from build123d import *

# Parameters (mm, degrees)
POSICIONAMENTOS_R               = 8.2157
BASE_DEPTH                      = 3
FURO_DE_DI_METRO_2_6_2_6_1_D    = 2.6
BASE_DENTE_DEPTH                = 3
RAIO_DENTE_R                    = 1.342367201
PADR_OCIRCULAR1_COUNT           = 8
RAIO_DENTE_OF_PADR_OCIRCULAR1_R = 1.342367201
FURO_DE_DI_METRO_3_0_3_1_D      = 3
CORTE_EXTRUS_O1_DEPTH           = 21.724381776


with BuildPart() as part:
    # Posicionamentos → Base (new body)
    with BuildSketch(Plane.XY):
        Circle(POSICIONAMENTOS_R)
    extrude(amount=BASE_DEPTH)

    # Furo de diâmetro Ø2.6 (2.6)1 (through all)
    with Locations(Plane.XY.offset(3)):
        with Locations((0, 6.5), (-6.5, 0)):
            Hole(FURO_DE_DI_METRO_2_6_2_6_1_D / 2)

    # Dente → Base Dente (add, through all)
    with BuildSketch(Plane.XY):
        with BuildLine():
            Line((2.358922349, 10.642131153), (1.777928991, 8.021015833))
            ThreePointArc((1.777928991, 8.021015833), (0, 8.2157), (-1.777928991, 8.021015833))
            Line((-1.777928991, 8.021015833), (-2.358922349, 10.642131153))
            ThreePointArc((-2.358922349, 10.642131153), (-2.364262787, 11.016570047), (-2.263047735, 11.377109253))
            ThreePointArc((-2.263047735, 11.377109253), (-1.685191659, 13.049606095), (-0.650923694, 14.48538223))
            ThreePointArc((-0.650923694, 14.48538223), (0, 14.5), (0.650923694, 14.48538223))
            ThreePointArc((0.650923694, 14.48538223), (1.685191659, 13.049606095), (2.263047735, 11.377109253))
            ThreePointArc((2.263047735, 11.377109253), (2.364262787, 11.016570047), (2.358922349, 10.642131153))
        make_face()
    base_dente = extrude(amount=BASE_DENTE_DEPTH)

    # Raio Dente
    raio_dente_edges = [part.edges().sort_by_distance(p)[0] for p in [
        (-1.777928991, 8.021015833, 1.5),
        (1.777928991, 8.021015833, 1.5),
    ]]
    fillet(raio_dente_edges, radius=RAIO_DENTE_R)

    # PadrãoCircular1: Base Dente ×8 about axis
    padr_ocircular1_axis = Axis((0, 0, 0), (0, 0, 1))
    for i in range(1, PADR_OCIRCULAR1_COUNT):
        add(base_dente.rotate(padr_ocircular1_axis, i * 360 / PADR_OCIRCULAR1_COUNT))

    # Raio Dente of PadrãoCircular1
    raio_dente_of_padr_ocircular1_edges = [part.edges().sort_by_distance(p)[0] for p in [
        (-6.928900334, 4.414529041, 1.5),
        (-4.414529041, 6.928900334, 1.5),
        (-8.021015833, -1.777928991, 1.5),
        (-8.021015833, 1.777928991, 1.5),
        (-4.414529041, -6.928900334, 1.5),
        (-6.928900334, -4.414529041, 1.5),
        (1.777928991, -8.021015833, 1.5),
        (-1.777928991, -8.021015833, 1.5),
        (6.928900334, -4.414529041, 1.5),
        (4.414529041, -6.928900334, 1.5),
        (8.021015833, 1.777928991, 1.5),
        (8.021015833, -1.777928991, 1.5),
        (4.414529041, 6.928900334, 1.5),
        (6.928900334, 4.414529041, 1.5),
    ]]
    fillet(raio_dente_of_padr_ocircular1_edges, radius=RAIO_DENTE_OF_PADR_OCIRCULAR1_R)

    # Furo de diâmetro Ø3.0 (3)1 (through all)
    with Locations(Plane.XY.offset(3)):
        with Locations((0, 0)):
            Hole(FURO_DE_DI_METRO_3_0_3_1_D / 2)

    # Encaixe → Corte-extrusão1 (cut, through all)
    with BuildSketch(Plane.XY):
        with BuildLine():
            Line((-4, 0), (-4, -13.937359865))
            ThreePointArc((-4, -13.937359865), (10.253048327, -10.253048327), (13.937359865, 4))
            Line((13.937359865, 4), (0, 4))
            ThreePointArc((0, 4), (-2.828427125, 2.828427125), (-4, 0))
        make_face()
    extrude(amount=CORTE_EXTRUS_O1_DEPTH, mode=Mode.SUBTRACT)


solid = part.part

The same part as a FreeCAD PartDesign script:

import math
import FreeCAD as App
import Part
import Sketcher
from FreeCAD import Vector
Q = App.Units.Quantity


def edges_at(feature, points):
    """Names of the edges that pass closest to the given points."""
    edges = feature.Shape.Edges
    near = lambda p: min(range(len(edges)), key=lambda i: edges[i].distToShape(Part.Vertex(*p))[0])
    return sorted({f"Edge{near(p) + 1}" for p in points})

doc = App.newDocument("Part")
params = doc.addObject("Spreadsheet::Sheet", "Params")
for row, (alias, value) in enumerate([
    ("pad1_length", "3 mm"),
    ("sketch2_diameter", "2.6 mm"),
    ("hole_diameter", "2.6 mm"),
    ("sketch3_radius", "14.5 mm"),
    ("sketch3_radius2", "6.09 mm"),
    ("pad2_length", "3 mm"),
    ("fillet_radius", "1.342367 mm"),
    ("fillet2_radius", "1.342367 mm"),
    ("sketch4_diameter", "3 mm"),
    ("hole2_diameter", "3 mm"),
    ("sketch5_radius", "4 mm"),
    ("sketch5_radius2", "14.5 mm"),
], start=1):
    params.set(f"A{row}", alias)
    params.set(f"B{row}", "=" + value)
    params.setAlias(f"B{row}", alias)

body = doc.addObject("PartDesign::Body", "Body")

# Sketch on XY plane
sketch1 = doc.addObject("Sketcher::SketchObject", "Sketch")
body.addObject(sketch1)
sketch1.AttachmentSupport = (doc.XY_Plane, [""])
sketch1.MapMode = "FlatFace"
sketch1.addGeometry(Part.Circle(Vector(0, 0, 0), Vector(0, 0, 1), 8.2157), False)
sketch1.addConstraint([
    Sketcher.Constraint("Coincident", 0, 3, -1, 1),
    Sketcher.Constraint("Diameter", 0, Q("16.4314 mm")),
])
pad1 = doc.addObject("PartDesign::Pad", "Pad")
body.addObject(pad1)
pad1.Profile = sketch1
pad1.setExpression("Length", "Params.pad1_length")

# Sketch on XY plane
sketch2 = doc.addObject("Sketcher::SketchObject", "Sketch001")
body.addObject(sketch2)
sketch2.AttachmentSupport = (doc.XY_Plane, [""])
sketch2.MapMode = "FlatFace"
sketch2.AttachmentOffset = App.Placement(Vector(0, 0, 3), App.Rotation())
sketch2.addGeometry([
    Part.Circle(Vector(0, 6.5, 0), Vector(0, 0, 1), 1.3),
    Part.Circle(Vector(-6.5, 0, 0), Vector(0, 0, 1), 1.3),
], False)
sketch2.addConstraint([
    Sketcher.Constraint("Equal", 0, 1),
    Sketcher.Constraint("PointOnObject", 0, 3, -2),
    Sketcher.Constraint("PointOnObject", 1, 3, -1),
    Sketcher.Constraint("Diameter", 0, Q("2.6 mm")),
    Sketcher.Constraint("DistanceY", -1, 1, 0, 3, Q("6.5 mm")),
    Sketcher.Constraint("DistanceX", 1, 3, -1, 1, Q("6.5 mm")),
])
sketch2.setExpression("Constraints[3]", "Params.sketch2_diameter")
doc.recompute()
hole = doc.addObject("PartDesign::Hole", "Hole")
body.addObject(hole)
hole.Profile = sketch2
hole.ThreadType = "None"
hole.setExpression("Diameter", "Params.hole_diameter")
hole.DepthType = "ThroughAll"

# Sketch on XY plane
sketch3 = doc.addObject("Sketcher::SketchObject", "Sketch002")
body.addObject(sketch3)
sketch3.AttachmentSupport = (doc.XY_Plane, [""])
sketch3.MapMode = "FlatFace"
sketch3.addGeometry([
    Part.LineSegment(Vector(1.777929, 8.021016, 0), Vector(2.358922, 10.642131, 0)),  # 0
    Part.ArcOfCircle(Part.Circle(Vector(1.070226, 10.847769, 0), Vector(0, 0, 1), 1.305), math.radians(-9.066266), math.radians(23.930294)),  # 1
    Part.ArcOfCircle(Part.Circle(Vector(-3.72093, 10.245689, 0), Vector(0, 0, 1), 6.09), math.radians(10.7068), math.radians(44.120755)),  # 2
    Part.ArcOfCircle(Part.Circle(Vector(0, 0, 0), Vector(0, 0, 1), 14.5), math.radians(87.427054), math.radians(92.572946)),  # 3
    Part.ArcOfCircle(Part.Circle(Vector(3.72093, 10.245689, 0), Vector(0, 0, 1), 6.09), math.radians(135.879245), math.radians(169.2932)),  # 4
    Part.ArcOfCircle(Part.Circle(Vector(-1.070226, 10.847769, 0), Vector(0, 0, 1), 1.305), math.radians(156.069706), math.radians(189.066266)),  # 5
    Part.LineSegment(Vector(-2.358922, 10.642131, 0), Vector(-1.777929, 8.021016, 0)),  # 6
    Part.ArcOfCircle(Part.Circle(Vector(0, 0, 0), Vector(0, 0, 1), 8.2157), math.radians(77.501957), math.radians(102.498043)),  # 7
], False)
sketch3.addConstraint([
    Sketcher.Constraint("Coincident", 0, 2, 1, 1),
    Sketcher.Constraint("Coincident", 1, 2, 2, 1),
    Sketcher.Constraint("Coincident", 2, 2, 3, 1),
    Sketcher.Constraint("Coincident", 3, 2, 4, 1),
    Sketcher.Constraint("Coincident", 4, 2, 5, 1),
    Sketcher.Constraint("Coincident", 5, 2, 6, 1),
    Sketcher.Constraint("Coincident", 6, 2, 7, 2),
    Sketcher.Constraint("Coincident", 7, 1, 0, 1),
    Sketcher.Constraint("Coincident", 3, 3, -1, 1),
    Sketcher.Constraint("Coincident", 7, 3, -1, 1),
    Sketcher.Constraint("Equal", 2, 4),
    Sketcher.Constraint("Equal", 1, 5),
    Sketcher.Constraint("Symmetric", 2, 3, 4, 3, -2),
    Sketcher.Constraint("Symmetric", 1, 3, 5, 3, -2),
    Sketcher.Constraint("Horizontal", 0, 2, 5, 2),
    Sketcher.Constraint("Horizontal", 6, 2, 7, 1),
    Sketcher.Constraint("Radius", 3, Q("14.5 mm")),
    Sketcher.Constraint("Radius", 2, Q("6.09 mm")),
    Sketcher.Constraint("Radius", 1, Q("1.305 mm")),
    Sketcher.Constraint("Radius", 7, Q("8.2157 mm")),
    Sketcher.Constraint("DistanceX", 2, 2, 0, 2, Q("1.707999 mm")),
    Sketcher.Constraint("DistanceX", 2, 3, 6, 2, Q("1.943001 mm")),
    Sketcher.Constraint("DistanceY", -1, 1, 1, 3, Q("10.847769 mm")),
    Sketcher.Constraint("DistanceX", 2, 3, -1, 1, Q("3.72093 mm")),
    Sketcher.Constraint("DistanceY", -1, 1, 2, 3, Q("10.245689 mm")),
    Sketcher.Constraint("DistanceY", -1, 1, 0, 2, Q("10.642131 mm")),
])
sketch3.setExpression("Constraints[16]", "Params.sketch3_radius")
sketch3.setExpression("Constraints[17]", "Params.sketch3_radius2")
pad2 = doc.addObject("PartDesign::Pad", "Pad001")
body.addObject(pad2)
pad2.Profile = sketch3
pad2.setExpression("Length", "Params.pad2_length")
doc.recompute()

fillet = doc.addObject("PartDesign::Fillet", "Fillet")
body.addObject(fillet)
fillet.Base = (pad2, edges_at(pad2, [(-1.778, 8.021, 1.5), (1.778, 8.021, 1.5)]))
fillet.setExpression("Radius", "Params.fillet_radius")
doc.recompute()

polarpattern = doc.addObject("PartDesign::PolarPattern", "PolarPattern")
body.addObject(polarpattern)
polarpattern.Originals = [pad2]
polarpattern.Axis = (doc.Z_Axis, [""])
polarpattern.Angle = 360
polarpattern.Occurrences = 8
body.Tip = polarpattern
doc.recompute()

fillet2 = doc.addObject("PartDesign::Fillet", "Fillet001")
body.addObject(fillet2)
fillet2.Base = (polarpattern, edges_at(polarpattern, [
    (-6.929, 4.415, 1.5),
    (-4.415, 6.929, 1.5),
    (-8.021, -1.778, 1.5),
    (-8.021, 1.778, 1.5),
    (-4.415, -6.929, 1.5),
    (-6.929, -4.415, 1.5),
    (1.778, -8.021, 1.5),
    (-1.778, -8.021, 1.5),
    (6.929, -4.415, 1.5),
    (4.415, -6.929, 1.5),
    (8.021, 1.778, 1.5),
    (8.021, -1.778, 1.5),
    (4.415, 6.929, 1.5),
    (6.929, 4.415, 1.5),
]))
fillet2.setExpression("Radius", "Params.fillet2_radius")

# Sketch on XY plane
sketch4 = doc.addObject("Sketcher::SketchObject", "Sketch003")
body.addObject(sketch4)
sketch4.AttachmentSupport = (doc.XY_Plane, [""])
sketch4.MapMode = "FlatFace"
sketch4.AttachmentOffset = App.Placement(Vector(0, 0, 3), App.Rotation())
sketch4.addGeometry(Part.Circle(Vector(0, 0, 0), Vector(0, 0, 1), 1.5), False)
sketch4.addConstraint([
    Sketcher.Constraint("Coincident", 0, 3, -1, 1),
    Sketcher.Constraint("Diameter", 0, Q("3 mm")),
])
sketch4.setExpression("Constraints[1]", "Params.sketch4_diameter")
doc.recompute()
hole2 = doc.addObject("PartDesign::Hole", "Hole001")
body.addObject(hole2)
hole2.Profile = sketch4
hole2.ThreadType = "None"
hole2.setExpression("Diameter", "Params.hole2_diameter")
hole2.DepthType = "ThroughAll"

# Sketch on XY plane
sketch5 = doc.addObject("Sketcher::SketchObject", "Sketch004")
body.addObject(sketch5)
sketch5.AttachmentSupport = (doc.XY_Plane, [""])
sketch5.MapMode = "FlatFace"
sketch5.addGeometry([
    Part.LineSegment(Vector(-4, 0, 0), Vector(-4, -13.93736, 0)),
    Part.ArcOfCircle(Part.Circle(Vector(0, 0, 0), Vector(0, 0, 1), 14.5), math.radians(-106.013394), math.radians(16.013394)),
    Part.LineSegment(Vector(13.93736, 4, 0), Vector(0, 4, 0)),
    Part.ArcOfCircle(Part.Circle(Vector(0, 0, 0), Vector(0, 0, 1), 4), math.radians(90), math.radians(180)),
], False)
sketch5.addConstraint([
    Sketcher.Constraint("Coincident", 0, 2, 1, 1),
    Sketcher.Constraint("Coincident", 1, 2, 2, 1),
    Sketcher.Constraint("Tangent", 2, 2, 3, 1),
    Sketcher.Constraint("Tangent", 3, 2, 0, 1),
    Sketcher.Constraint("Vertical", 0),
    Sketcher.Constraint("Horizontal", 2),
    Sketcher.Constraint("Coincident", 1, 3, -1, 1),
    Sketcher.Constraint("Coincident", 3, 3, -1, 1),
    Sketcher.Constraint("Radius", 3, Q("4 mm")),
    Sketcher.Constraint("Radius", 1, Q("14.5 mm")),
])
sketch5.setExpression("Constraints[8]", "Params.sketch5_radius")
sketch5.setExpression("Constraints[9]", "Params.sketch5_radius2")
pocket1 = doc.addObject("PartDesign::Pocket", "Pocket")
body.addObject(pocket1)
pocket1.Profile = sketch5
pocket1.Type = "ThroughAll"
pocket1.Reversed = True

doc.recompute()
